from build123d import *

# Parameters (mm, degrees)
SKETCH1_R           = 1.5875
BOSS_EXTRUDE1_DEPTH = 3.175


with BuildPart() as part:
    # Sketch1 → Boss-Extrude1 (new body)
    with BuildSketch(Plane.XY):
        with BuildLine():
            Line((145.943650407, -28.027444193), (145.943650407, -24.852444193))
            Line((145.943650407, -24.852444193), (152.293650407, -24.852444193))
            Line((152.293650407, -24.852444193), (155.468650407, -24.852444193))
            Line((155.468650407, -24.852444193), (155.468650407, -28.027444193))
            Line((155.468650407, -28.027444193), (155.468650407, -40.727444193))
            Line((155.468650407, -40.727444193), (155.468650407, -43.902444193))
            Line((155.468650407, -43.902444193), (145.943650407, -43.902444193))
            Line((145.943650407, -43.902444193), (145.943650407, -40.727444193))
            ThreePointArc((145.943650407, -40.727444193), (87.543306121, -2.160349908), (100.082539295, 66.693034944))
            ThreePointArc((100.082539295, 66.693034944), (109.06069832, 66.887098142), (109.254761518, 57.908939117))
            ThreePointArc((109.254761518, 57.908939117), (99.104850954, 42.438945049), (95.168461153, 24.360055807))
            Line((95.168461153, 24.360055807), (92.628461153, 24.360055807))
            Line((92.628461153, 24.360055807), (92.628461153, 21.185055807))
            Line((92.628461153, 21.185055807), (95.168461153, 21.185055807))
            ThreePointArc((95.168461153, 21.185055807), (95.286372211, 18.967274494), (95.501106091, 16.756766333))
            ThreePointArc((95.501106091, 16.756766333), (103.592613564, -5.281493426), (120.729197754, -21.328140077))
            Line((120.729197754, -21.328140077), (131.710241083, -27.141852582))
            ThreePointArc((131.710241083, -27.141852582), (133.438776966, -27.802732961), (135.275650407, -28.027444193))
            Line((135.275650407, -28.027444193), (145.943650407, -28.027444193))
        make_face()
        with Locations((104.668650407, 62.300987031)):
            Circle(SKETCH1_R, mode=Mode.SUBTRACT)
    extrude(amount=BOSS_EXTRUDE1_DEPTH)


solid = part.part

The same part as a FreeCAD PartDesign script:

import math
import FreeCAD as App
import Part
import Sketcher
Q = App.Units.Quantity

doc = App.newDocument("Part")
params = doc.addObject("Spreadsheet::Sheet", "Params")
for row, (alias, value) in enumerate([
    ("sketch1_radius", "2 in"),
    ("sketch1_radius2", "0.3 in"),
    ("sketch1_radius3", "2.5 in"),
    ("sketch1_diameter", "0.125 in"),
    ("sketch1_width", "0.1 in"),
    ("pad1_length", "0.125 in"),
], start=1):
    params.set(f"A{row}", alias)
    params.set(f"B{row}", "=" + value)
    params.setAlias(f"B{row}", alias)

body = doc.addObject("PartDesign::Body", "Body")

# Sketch on XY plane
sketch1 = body.newObject("Sketcher::SketchObject", "Sketch")
sketch1.AttachmentSupport = (doc.getObject("XY_Plane"), [""])
sketch1.MapMode = "FlatFace"
sketch1.addGeometry(Part.LineSegment(App.Vector(145.94365, -24.852444, 0), App.Vector(145.94365, -28.027444, 0)), False)
sketch1.addGeometry(Part.LineSegment(App.Vector(145.94365, -28.027444, 0), App.Vector(135.27565, -28.027444, 0)), False)
sketch1.addGeometry(Part.ArcOfCircle(Part.Circle(App.Vector(135.27565, -20.407444, 0), App.Vector(0, 0, 1), 7.62), math.radians(-117.898163), math.radians(-90)), False)
sketch1.addGeometry(Part.LineSegment(App.Vector(131.710241, -27.141853, 0), App.Vector(120.729198, -21.32814, 0)), False)
sketch1.addGeometry(Part.ArcOfCircle(Part.Circle(App.Vector(145.94365, 22.772556, 0), App.Vector(0, 0, 1), 50.8), math.radians(-173.199014), math.radians(-119.758645)), False)
sketch1.addGeometry(Part.ArcOfCircle(Part.Circle(App.Vector(145.94365, 22.772556, 0), App.Vector(0, 0, 1), 50.799999), math.radians(-178.209215), math.radians(-173.199014)), False)
sketch1.addGeometry(Part.LineSegment(App.Vector(95.168461, 21.185056, 0), App.Vector(92.628461, 21.185056, 0)), False)
sketch1.addGeometry(Part.LineSegment(App.Vector(92.628461, 21.185056, 0), App.Vector(92.628461, 24.360056, 0)), False)
sketch1.addGeometry(Part.LineSegment(App.Vector(92.628461, 24.360056, 0), App.Vector(95.168461, 24.360056, 0)), False)
sketch1.addGeometry(Part.ArcOfCircle(Part.Circle(App.Vector(145.94365, 22.772556, 0), App.Vector(0, 0, 1), 50.8), math.radians(136.238257), math.radians(178.209215)), False)
sketch1.addGeometry(Part.ArcOfCircle(Part.Circle(App.Vector(104.66865, 62.300987, 0), App.Vector(0, 0, 1), 6.35), math.radians(-43.761743), math.radians(136.238257)), False)
sketch1.addGeometry(Part.ArcOfCircle(Part.Circle(App.Vector(145.94365, 22.772556, 0), App.Vector(0, 0, 1), 63.5), math.radians(136.238257), math.radians(270)), False)
sketch1.addGeometry(Part.LineSegment(App.Vector(145.94365, -40.727444, 0), App.Vector(145.94365, -43.902444, 0)), False)
sketch1.addGeometry(Part.LineSegment(App.Vector(145.94365, -43.902444, 0), App.Vector(155.46865, -43.902444, 0)), False)
sketch1.addGeometry(Part.LineSegment(App.Vector(155.46865, -43.902444, 0), App.Vector(155.46865, -24.852444, 0)), False)
sketch1.addGeometry(Part.LineSegment(App.Vector(155.46865, -24.852444, 0), App.Vector(145.94365, -24.852444, 0)), False)
sketch1.addGeometry(Part.Circle(App.Vector(104.66865, 62.300987, 0), App.Vector(0, 0, 1), 1.5875), False)
sketch1.addConstraint(Sketcher.Constraint("Coincident", 0, 2, 1, 1))
sketch1.addConstraint(Sketcher.Constraint("Tangent", 1, 2, 2, 2))
sketch1.addConstraint(Sketcher.Constraint("Tangent", 2, 1, 3, 1))
sketch1.addConstraint(Sketcher.Constraint("Coincident", 3, 2, 4, 2))
sketch1.addConstraint(Sketcher.Constraint("Tangent", 4, 1, 5, 2))
sketch1.addConstraint(Sketcher.Constraint("Coincident", 5, 1, 6, 1))
sketch1.addConstraint(Sketcher.Constraint("Coincident", 6, 2, 7, 1))
sketch1.addConstraint(Sketcher.Constraint("Coincident", 7, 2, 8, 1))
sketch1.addConstraint(Sketcher.Constraint("Coincident", 8, 2, 9, 2))
sketch1.addConstraint(Sketcher.Constraint("Tangent", 9, 1, 10, 1))
sketch1.addConstraint(Sketcher.Constraint("Tangent", 10, 2, 11, 1))
sketch1.addConstraint(Sketcher.Constraint("Coincident", 11, 2, 12, 1))
sketch1.addConstraint(Sketcher.Constraint("Coincident", 12, 2, 13, 1))
sketch1.addConstraint(Sketcher.Constraint("Coincident", 13, 2, 14, 1))
sketch1.addConstraint(Sketcher.Constraint("Coincident", 14, 2, 15, 1))
sketch1.addConstraint(Sketcher.Constraint("Coincident", 15, 2, 0, 1))
sketch1.addConstraint(Sketcher.Constraint("Vertical", 0))
sketch1.addConstraint(Sketcher.Constraint("Horizontal", 1))
sketch1.addConstraint(Sketcher.Constraint("Horizontal", 6))
sketch1.addConstraint(Sketcher.Constraint("Vertical", 7))
sketch1.addConstraint(Sketcher.Constraint("Horizontal", 8))
sketch1.addConstraint(Sketcher.Constraint("Vertical", 12))
sketch1.addConstraint(Sketcher.Constraint("Horizontal", 13))
sketch1.addConstraint(Sketcher.Constraint("Vertical", 14))
sketch1.addConstraint(Sketcher.Constraint("Horizontal", 15))
sketch1.addConstraint(Sketcher.Constraint("Coincident", 9, 3, 4, 3))
sketch1.addConstraint(Sketcher.Constraint("Coincident", 11, 3, 4, 3))
sketch1.addConstraint(Sketcher.Constraint("Coincident", 16, 3, 10, 3))
sketch1.addConstraint(Sketcher.Constraint("Equal", 4, 5))
sketch1.addConstraint(Sketcher.Constraint("Equal", 5, 9))
sketch1.addConstraint(Sketcher.Constraint("Vertical", 11, 3, 0, 2))
sketch1.addConstraint(Sketcher.Constraint("Vertical", 5, 1, 8, 2))
sketch1.addConstraint(Sketcher.Constraint("Vertical", 0, 2, 11, 2))
sketch1.addConstraint(Sketcher.Constraint("Equal", 0, 7))
sketch1.addConstraint(Sketcher.Constraint("Equal", 7, 12))
sketch1.addConstraint(Sketcher.Constraint("Radius", 4, Q("2 in")))
sketch1.addConstraint(Sketcher.Constraint("Radius", 2, Q("0.3 in")))
sketch1.addConstraint(Sketcher.Constraint("Radius", 11, Q("2.5 in")))
sketch1.addConstraint(Sketcher.Constraint("Diameter", 16, Q("0.125 in")))
sketch1.addConstraint(Sketcher.Constraint("DistanceX", 6, 2, 6, 1, Q("0.1 in")))
sketch1.addConstraint(Sketcher.Constraint("DistanceY", 0, 2, 5, 3, Q("2 in")))
sketch1.addConstraint(Sketcher.Constraint("DistanceX", 1, 2, 1, 1, Q("0.42 in")))
sketch1.addConstraint(Sketcher.Constraint("DistanceY", 14, 1, 14, 2, Q("0.75 in")))
sketch1.addConstraint(Sketcher.Constraint("DistanceX", 13, 1, 13, 2, Q("0.375 in")))
sketch1.addConstraint(Sketcher.Constraint("DistanceX", 10, 3, 5, 3, Q("1.625 in")))
sketch1.addConstraint(Sketcher.Constraint("Distance", 3, Q("12.425078 mm")))
sketch1.addConstraint(Sketcher.Constraint("DistanceX", -1, 1, 2, 3, Q("135.27565 mm")))
sketch1.addConstraint(Sketcher.Constraint("DistanceY", 3, 2, -1, 1, Q("21.32814 mm")))
sketch1.addConstraint(Sketcher.Constraint("DistanceX", 4, 1, 3, 2, Q("25.228092 mm")))
sketch1.setExpression("Constraints[35]", "Params.sketch1_radius")
sketch1.setExpression("Constraints[36]", "Params.sketch1_radius2")
sketch1.setExpression("Constraints[37]", "Params.sketch1_radius3")
sketch1.setExpression("Constraints[38]", "Params.sketch1_diameter")
sketch1.setExpression("Constraints[39]", "Params.sketch1_width")
pad1 = body.newObject("PartDesign::Pad", "Pad")
pad1.Profile = sketch1
pad1.setExpression("Length", "Params.pad1_length")

doc.recompute()
